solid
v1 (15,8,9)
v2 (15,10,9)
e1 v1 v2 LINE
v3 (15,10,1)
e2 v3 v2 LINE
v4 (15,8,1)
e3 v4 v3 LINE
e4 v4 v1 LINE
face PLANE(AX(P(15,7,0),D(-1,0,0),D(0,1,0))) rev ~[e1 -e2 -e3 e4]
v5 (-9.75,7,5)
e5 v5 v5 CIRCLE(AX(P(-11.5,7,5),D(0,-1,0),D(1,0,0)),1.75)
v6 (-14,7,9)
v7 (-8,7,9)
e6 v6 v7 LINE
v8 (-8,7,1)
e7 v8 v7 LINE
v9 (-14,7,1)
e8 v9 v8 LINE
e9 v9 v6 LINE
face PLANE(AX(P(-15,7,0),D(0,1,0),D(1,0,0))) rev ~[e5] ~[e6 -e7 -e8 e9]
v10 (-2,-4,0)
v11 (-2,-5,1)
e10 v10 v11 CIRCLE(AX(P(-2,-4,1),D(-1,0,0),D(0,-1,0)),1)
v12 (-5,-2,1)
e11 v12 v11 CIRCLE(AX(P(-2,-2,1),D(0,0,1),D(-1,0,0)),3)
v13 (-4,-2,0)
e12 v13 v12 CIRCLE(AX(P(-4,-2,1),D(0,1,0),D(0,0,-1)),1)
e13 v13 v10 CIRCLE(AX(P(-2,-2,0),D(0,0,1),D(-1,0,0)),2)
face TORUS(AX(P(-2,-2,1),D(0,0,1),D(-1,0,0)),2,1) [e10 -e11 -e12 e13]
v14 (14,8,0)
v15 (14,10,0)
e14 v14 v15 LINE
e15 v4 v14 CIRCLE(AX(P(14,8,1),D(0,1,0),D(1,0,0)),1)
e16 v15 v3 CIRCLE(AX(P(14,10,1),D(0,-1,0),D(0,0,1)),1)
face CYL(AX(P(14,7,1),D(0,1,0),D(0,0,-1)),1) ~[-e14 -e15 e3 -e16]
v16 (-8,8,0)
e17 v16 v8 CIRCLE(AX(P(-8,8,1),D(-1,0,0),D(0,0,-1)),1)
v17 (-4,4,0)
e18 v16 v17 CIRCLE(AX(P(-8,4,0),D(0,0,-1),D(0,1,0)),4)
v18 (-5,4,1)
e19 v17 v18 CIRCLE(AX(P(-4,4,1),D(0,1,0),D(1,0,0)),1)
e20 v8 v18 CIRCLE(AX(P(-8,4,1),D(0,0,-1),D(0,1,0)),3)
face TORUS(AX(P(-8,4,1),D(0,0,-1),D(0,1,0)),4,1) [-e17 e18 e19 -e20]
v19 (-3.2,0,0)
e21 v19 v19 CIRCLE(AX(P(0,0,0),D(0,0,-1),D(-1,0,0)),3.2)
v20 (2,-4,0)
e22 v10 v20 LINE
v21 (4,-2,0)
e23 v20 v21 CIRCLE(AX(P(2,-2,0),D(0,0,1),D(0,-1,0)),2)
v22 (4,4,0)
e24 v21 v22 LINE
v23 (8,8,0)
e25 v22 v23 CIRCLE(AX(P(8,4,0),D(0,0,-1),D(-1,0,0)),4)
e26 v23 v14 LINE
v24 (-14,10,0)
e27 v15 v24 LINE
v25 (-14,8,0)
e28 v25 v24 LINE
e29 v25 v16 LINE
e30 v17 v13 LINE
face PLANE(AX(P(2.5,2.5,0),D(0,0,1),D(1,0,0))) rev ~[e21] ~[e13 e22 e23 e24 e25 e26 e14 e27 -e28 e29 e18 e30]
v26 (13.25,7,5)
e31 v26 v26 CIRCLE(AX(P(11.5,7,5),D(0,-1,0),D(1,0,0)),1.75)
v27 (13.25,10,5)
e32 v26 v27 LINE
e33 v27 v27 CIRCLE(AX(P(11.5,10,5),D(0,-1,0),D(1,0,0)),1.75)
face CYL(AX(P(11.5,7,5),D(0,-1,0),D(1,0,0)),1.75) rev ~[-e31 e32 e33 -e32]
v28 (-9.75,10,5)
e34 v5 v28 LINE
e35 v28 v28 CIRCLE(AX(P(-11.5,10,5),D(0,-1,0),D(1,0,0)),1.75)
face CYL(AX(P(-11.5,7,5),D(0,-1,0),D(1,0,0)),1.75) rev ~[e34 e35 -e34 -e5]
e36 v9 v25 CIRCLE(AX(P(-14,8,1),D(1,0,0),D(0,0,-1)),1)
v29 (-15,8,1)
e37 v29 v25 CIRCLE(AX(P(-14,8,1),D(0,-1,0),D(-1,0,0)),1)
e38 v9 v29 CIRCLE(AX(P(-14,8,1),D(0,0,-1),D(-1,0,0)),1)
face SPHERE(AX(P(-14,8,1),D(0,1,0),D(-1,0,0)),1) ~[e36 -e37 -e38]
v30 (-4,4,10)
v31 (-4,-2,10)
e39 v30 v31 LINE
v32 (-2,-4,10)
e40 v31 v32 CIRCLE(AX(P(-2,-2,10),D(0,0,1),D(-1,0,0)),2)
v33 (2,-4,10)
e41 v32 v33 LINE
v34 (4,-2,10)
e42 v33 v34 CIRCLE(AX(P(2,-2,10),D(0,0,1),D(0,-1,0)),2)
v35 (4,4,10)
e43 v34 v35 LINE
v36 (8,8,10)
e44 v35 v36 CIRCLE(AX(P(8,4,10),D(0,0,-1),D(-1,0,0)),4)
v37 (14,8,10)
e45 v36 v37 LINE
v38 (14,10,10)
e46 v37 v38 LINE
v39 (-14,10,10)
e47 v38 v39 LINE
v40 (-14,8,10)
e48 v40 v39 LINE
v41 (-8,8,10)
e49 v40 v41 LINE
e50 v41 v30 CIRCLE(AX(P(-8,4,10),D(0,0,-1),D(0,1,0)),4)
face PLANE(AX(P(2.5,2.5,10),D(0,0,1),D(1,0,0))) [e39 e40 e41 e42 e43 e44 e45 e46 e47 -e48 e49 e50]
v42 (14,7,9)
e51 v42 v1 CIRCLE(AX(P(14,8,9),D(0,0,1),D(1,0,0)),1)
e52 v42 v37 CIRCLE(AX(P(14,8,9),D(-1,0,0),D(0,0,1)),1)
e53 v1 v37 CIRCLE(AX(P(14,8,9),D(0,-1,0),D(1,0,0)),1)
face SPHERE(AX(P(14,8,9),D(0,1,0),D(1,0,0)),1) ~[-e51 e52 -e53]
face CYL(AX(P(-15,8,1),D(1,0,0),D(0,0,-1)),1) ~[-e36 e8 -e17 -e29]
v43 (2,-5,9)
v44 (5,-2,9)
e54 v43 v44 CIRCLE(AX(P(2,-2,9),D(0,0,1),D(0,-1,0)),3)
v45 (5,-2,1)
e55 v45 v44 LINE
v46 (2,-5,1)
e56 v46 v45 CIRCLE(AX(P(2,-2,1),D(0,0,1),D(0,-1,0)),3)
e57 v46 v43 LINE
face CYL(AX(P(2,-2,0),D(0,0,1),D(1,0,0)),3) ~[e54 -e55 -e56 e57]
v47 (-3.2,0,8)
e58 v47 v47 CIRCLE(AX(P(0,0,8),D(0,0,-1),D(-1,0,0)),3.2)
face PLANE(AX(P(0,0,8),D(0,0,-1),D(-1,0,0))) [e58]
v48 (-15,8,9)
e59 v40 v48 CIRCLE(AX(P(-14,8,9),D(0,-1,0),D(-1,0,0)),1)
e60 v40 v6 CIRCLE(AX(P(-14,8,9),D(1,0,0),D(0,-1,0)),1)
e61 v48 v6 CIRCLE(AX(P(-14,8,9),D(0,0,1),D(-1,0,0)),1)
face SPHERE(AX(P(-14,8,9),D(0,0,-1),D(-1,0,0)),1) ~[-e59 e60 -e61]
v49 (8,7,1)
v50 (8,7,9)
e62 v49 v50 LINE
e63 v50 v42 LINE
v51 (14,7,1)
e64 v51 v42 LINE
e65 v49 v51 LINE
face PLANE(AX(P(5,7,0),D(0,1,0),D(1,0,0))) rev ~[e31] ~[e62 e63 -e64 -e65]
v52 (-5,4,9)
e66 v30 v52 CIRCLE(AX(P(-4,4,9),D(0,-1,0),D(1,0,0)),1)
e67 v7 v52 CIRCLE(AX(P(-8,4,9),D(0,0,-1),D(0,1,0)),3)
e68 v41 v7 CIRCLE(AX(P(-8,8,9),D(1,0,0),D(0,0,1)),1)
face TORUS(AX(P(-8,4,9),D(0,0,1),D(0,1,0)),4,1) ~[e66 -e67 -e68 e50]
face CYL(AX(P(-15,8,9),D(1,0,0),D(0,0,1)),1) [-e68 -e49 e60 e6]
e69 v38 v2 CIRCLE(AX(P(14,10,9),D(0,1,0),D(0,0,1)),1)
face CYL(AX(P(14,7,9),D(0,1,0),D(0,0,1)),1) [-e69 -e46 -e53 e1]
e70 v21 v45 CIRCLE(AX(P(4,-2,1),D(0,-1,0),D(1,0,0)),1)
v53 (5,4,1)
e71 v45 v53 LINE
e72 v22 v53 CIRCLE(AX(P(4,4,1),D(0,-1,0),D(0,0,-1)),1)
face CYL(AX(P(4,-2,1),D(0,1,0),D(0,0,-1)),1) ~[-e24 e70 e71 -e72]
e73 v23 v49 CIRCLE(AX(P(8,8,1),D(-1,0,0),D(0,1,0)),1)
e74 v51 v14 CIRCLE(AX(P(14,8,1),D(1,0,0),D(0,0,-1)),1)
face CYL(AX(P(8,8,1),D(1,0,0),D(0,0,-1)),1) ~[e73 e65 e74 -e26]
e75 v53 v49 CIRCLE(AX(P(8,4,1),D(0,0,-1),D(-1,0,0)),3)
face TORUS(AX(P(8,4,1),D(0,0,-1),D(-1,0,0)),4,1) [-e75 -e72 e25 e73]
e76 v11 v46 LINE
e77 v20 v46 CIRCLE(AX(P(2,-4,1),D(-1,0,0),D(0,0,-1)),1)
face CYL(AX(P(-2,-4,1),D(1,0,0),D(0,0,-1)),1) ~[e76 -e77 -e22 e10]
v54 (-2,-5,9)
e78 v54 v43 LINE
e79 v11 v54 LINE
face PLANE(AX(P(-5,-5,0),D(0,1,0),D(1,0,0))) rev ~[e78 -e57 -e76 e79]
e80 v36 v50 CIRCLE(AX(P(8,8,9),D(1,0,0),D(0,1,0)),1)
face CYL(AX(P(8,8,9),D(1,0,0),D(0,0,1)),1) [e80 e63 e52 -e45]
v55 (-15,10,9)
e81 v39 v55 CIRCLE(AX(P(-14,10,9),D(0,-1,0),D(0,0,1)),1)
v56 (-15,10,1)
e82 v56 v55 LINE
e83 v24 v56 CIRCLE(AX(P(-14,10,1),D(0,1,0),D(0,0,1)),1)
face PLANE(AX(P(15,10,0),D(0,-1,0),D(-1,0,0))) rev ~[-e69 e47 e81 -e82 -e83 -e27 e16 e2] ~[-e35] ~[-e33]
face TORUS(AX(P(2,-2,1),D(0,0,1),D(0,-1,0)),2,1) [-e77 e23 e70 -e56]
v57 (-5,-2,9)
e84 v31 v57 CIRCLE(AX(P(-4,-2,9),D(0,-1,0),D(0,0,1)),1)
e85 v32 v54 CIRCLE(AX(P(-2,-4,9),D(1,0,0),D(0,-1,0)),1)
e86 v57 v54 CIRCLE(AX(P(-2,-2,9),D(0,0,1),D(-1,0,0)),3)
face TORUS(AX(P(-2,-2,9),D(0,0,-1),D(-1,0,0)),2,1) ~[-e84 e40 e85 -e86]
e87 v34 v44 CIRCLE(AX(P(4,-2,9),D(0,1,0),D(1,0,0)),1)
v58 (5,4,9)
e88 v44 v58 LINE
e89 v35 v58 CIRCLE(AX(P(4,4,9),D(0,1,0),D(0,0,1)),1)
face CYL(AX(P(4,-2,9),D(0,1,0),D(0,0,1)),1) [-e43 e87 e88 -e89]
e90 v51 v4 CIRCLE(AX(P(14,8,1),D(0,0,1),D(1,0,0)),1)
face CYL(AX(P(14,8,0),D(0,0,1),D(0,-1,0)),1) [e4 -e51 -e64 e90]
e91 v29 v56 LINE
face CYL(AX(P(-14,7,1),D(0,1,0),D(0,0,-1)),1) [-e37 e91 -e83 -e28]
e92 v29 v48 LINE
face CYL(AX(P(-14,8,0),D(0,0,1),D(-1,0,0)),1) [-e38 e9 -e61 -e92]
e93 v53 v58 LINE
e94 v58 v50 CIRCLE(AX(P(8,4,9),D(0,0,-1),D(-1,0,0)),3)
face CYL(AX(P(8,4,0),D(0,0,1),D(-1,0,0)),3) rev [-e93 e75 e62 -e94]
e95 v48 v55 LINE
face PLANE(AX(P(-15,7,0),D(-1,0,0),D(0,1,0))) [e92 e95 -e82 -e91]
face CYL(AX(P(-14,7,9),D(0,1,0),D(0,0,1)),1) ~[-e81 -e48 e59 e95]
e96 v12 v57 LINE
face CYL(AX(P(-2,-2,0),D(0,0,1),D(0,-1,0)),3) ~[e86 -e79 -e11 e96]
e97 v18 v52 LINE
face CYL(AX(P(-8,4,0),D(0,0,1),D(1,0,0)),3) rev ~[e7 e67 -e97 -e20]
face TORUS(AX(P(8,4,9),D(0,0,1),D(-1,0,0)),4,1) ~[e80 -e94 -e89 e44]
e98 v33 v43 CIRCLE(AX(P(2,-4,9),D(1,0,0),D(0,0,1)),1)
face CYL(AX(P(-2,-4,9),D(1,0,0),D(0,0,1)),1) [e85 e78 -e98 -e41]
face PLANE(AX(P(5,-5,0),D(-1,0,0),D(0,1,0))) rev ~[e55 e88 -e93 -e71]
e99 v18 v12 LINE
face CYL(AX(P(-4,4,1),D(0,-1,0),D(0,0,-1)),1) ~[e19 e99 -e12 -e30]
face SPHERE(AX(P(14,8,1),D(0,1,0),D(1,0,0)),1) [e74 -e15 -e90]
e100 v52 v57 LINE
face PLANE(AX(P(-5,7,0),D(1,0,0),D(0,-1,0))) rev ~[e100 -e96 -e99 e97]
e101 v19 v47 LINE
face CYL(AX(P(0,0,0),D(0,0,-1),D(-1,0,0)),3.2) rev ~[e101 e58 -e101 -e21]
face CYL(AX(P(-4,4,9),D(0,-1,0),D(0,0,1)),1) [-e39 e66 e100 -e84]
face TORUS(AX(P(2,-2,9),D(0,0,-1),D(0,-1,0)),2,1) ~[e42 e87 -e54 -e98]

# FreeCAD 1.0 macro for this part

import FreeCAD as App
import Part
import Sketcher


def edges_at(feature, points):
    """Names of the edges that pass closest to the given points."""
    edges = feature.Shape.Edges
    near = lambda p: min(range(len(edges)), key=lambda i: edges[i].distToShape(Part.Vertex(*p))[0])
    return sorted({f"Edge{near(p) + 1}" for p in points})

doc = App.newDocument("Part")
body = doc.addObject("PartDesign::Body", "Body")

# Sketch on XY plane
sketch1 = body.newObject("Sketcher::SketchObject", "Sketch")
sketch1.AttachmentSupport = (doc.getObject("XY_Plane"), [""])
sketch1.MapMode = "FlatFace"
sketch1.addGeometry([
    Part.LineSegment(App.Vector(5, -5, 0), App.Vector(5, 7, 0)),  # 0
    Part.LineSegment(App.Vector(5, 7, 0), App.Vector(15, 7, 0)),  # 1
    Part.LineSegment(App.Vector(15, 7, 0), App.Vector(15, 10, 0)),  # 2
    Part.LineSegment(App.Vector(15, 10, 0), App.Vector(-15, 10, 0)),  # 3
    Part.LineSegment(App.Vector(-15, 10, 0), App.Vector(-15, 7, 0)),  # 4
    Part.LineSegment(App.Vector(-15, 7, 0), App.Vector(-5, 7, 0)),  # 5
    Part.LineSegment(App.Vector(-5, 7, 0), App.Vector(-5, -5, 0)),  # 6
    Part.LineSegment(App.Vector(-5, -5, 0), App.Vector(5, -5, 0)),  # 7
], False)
sketch1.addConstraint([
    Sketcher.Constraint("Coincident", 0, 2, 1, 1),
    Sketcher.Constraint("Coincident", 1, 2, 2, 1),
    Sketcher.Constraint("Coincident", 2, 2, 3, 1),
    Sketcher.Constraint("Coincident", 3, 2, 4, 1),
    Sketcher.Constraint("Coincident", 4, 2, 5, 1),
    Sketcher.Constraint("Coincident", 5, 2, 6, 1),
    Sketcher.Constraint("Coincident", 6, 2, 7, 1),
    Sketcher.Constraint("Coincident", 7, 2, 0, 1),
    Sketcher.Constraint("Vertical", 0),
    Sketcher.Constraint("Horizontal", 1),
    Sketcher.Constraint("Vertical", 2),
    Sketcher.Constraint("Horizontal", 3),
    Sketcher.Constraint("Vertical", 4),
    Sketcher.Constraint("Horizontal", 5),
    Sketcher.Constraint("Vertical", 6),
    Sketcher.Constraint("Horizontal", 7),
    Sketcher.Constraint("Symmetric", 1, 2, 4, 2, -2),
    Sketcher.Constraint("Equal", 1, 5),
    Sketcher.Constraint("Equal", 5, 7),
    Sketcher.Constraint("DistanceX", 1, 1, 1, 2, 10.0),
    Sketcher.Constraint("DistanceY", 0, 1, 0, 2, 12.0),
    Sketcher.Constraint("DistanceY", 2, 1, 2, 2, 3.0),
    Sketcher.Constraint("DistanceY", -1, 1, 0, 2, 7.0),
])
pad1 = body.newObject("PartDesign::Pad", "Pad")
pad1.Profile = sketch1
pad1.Length = 10

# Sketch on XY plane
sketch2 = body.newObject("Sketcher::SketchObject", "Sketch001")
sketch2.AttachmentSupport = (doc.getObject("XY_Plane"), [""])
sketch2.MapMode = "FlatFace"
sketch2.addGeometry(Part.Circle(App.Vector(0, 0, 0), App.Vector(0, 0, 1), 3.2), False)
sketch2.addConstraint([
    Sketcher.Constraint("Coincident", 0, 3, -1, 1),
    Sketcher.Constraint("Diameter", 0, 6.4),
])
pocket1 = body.newObject("PartDesign::Pocket", "Pocket")
pocket1.Profile = sketch2
pocket1.Length = 8
pocket1.Reversed = True

# Sketch on XZ plane
sketch3 = body.newObject("Sketcher::SketchObject", "Sketch002")
sketch3.AttachmentSupport = (doc.getObject("XZ_Plane"), [""])
sketch3.MapMode = "FlatFace"
sketch3.AttachmentOffset = App.Placement(App.Vector(0, 0, -7), App.Rotation())
sketch3.addGeometry([
    Part.Circle(App.Vector(-11.5, 5, 0), App.Vector(0, 0, 1), 1.8),
    Part.Circle(App.Vector(11.5, 5, 0), App.Vector(0, 0, 1), 1.8),
], False)
sketch3.addConstraint([
    Sketcher.Constraint("Equal", 0, 1),
    Sketcher.Constraint("Symmetric", 0, 3, 1, 3, -2),
    Sketcher.Constraint("Diameter", 0, 3.5),
    Sketcher.Constraint("DistanceY", -1, 1, 0, 3, 5.0),
    Sketcher.Constraint("DistanceX", 0, 3, 1, 3, 23.0),
])
pocket2 = body.newObject("PartDesign::Pocket", "Pocket001")
pocket2.Profile = sketch3
pocket2.Type = "ThroughAll"
doc.recompute()

fillet = body.newObject("PartDesign::Fillet", "Fillet")
fillet.Base = (pocket2, edges_at(pocket2, [
    (5, -5, 5),
    (-5, -5, 5),
    (-5, 7, 5),
    (5, 7, 5),
]))
fillet.Radius = 3
doc.recompute()

fillet2 = body.newObject("PartDesign::Fillet", "Fillet001")
fillet2.Base = (fillet, edges_at(fillet, [
    (-15, 8.5, 0),
    (15, 8.5, 0),
    (15, 8.5, 10),
    (-15, 7, 5),
    (15, 7, 5),
    (-15, 8.5, 10),
    (-5, 1, 0),
    (-5, 1, 10),
    (-11.5, 7, 0),
    (-11.5, 7, 10),
    (11.5, 7, 0),
    (11.5, 7, 10),
    (5, 1, 0),
    (5, 1, 10),
    (0, -5, 0),
    (0, -5, 10),
    (4.121, -4.121, 0),
    (-4.121, -4.121, 0),
    (4.121, -4.121, 10),
    (-4.121, -4.121, 10),
    (-5.879, 6.121, 0),
    (-5.879, 6.121, 10),
    (5.879, 6.121, 0),
    (5.879, 6.121, 10),
]))
fillet2.Radius = 1

doc.recompute()
